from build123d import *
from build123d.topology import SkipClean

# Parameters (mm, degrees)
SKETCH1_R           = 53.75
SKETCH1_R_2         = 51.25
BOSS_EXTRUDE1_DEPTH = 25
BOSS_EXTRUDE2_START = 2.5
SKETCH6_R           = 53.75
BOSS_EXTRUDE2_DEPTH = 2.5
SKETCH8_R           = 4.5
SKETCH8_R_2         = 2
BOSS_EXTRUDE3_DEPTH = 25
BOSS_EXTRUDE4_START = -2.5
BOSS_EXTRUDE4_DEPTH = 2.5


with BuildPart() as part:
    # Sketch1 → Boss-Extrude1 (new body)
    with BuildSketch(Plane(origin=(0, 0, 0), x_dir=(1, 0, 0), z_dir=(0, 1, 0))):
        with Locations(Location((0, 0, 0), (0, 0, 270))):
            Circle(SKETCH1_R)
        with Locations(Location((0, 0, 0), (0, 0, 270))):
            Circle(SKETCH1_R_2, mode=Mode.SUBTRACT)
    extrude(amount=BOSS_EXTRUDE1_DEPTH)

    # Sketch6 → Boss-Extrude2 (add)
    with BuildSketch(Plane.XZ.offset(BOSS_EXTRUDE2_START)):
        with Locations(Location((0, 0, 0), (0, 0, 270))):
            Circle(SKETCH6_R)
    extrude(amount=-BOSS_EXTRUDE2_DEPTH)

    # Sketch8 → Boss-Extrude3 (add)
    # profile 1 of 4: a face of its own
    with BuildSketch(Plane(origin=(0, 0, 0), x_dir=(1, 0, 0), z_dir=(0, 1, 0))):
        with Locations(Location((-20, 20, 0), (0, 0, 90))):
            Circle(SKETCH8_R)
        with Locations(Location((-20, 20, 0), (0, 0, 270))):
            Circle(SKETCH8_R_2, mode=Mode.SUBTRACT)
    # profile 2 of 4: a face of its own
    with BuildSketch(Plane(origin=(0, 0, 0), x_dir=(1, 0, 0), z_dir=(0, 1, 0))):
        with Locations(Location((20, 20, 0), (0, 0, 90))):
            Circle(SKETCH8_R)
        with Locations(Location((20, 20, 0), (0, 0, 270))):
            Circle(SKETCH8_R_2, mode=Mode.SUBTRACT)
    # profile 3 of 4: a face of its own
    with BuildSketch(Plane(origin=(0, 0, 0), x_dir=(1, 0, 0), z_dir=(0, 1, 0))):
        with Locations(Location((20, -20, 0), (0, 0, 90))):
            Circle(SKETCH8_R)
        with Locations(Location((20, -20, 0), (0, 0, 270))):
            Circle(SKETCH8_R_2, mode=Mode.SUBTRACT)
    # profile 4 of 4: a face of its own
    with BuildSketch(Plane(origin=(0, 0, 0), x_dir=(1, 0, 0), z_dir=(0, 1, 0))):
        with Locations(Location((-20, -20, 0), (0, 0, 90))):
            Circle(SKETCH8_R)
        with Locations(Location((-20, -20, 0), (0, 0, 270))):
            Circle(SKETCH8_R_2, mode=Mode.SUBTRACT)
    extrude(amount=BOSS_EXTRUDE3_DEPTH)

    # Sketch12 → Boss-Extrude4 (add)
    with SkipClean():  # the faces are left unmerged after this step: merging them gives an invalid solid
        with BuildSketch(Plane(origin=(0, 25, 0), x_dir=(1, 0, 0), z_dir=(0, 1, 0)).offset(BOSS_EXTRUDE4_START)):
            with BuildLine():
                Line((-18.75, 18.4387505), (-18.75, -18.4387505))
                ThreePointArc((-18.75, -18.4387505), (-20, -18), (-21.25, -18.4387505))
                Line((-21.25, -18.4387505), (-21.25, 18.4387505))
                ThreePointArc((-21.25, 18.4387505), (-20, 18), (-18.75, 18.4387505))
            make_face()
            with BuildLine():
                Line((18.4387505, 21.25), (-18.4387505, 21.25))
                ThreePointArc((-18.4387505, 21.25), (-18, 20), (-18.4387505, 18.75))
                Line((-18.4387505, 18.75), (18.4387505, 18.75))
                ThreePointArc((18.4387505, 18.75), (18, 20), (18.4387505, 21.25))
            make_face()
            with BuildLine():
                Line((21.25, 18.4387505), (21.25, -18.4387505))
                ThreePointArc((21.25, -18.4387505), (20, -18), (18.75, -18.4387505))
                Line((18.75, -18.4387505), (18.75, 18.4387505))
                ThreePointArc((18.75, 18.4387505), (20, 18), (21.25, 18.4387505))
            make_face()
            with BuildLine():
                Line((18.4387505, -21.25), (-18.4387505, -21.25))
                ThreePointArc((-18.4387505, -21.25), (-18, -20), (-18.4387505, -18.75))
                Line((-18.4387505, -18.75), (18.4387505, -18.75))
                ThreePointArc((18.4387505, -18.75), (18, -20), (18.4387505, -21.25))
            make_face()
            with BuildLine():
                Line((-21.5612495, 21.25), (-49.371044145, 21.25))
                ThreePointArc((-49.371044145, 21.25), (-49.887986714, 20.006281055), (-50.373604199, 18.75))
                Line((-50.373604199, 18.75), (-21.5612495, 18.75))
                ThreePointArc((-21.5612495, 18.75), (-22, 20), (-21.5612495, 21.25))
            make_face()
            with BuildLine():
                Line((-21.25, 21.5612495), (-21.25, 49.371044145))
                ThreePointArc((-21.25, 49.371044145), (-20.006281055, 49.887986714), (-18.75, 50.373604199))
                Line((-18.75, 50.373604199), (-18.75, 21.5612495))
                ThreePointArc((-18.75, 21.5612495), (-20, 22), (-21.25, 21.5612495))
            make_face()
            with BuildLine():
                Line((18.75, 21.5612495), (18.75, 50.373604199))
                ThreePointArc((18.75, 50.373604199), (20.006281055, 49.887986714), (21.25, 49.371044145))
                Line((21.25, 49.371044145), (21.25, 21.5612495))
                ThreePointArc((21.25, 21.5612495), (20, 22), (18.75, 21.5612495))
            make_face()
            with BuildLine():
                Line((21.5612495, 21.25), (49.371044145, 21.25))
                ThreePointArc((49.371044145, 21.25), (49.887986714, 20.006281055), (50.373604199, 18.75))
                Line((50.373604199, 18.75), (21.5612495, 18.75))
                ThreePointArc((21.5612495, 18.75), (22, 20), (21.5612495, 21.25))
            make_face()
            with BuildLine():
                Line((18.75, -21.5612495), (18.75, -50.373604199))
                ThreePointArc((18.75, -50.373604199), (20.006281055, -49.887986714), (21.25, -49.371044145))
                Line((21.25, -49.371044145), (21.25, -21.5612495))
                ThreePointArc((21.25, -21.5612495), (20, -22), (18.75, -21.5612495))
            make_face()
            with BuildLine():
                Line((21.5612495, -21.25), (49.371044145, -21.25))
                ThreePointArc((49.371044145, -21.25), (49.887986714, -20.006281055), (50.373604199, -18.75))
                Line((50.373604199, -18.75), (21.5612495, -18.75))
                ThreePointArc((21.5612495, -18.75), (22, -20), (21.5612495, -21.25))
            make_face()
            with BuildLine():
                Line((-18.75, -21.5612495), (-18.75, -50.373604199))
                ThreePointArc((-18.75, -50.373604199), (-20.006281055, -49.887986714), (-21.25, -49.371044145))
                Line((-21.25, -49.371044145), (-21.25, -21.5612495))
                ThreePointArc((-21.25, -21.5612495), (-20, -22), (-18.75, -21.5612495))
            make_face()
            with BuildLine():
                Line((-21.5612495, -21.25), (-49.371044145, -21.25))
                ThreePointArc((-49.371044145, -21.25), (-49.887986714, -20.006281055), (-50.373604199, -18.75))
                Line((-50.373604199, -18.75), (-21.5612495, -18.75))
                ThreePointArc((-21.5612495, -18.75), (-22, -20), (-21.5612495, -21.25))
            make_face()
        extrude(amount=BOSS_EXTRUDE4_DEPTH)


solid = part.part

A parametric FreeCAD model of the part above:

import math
import FreeCAD as App
import Part
import Sketcher

doc = App.newDocument("Part")
body = doc.addObject("PartDesign::Body", "Body")

# Sketch on XZ plane
sketch1 = body.newObject("Sketcher::SketchObject", "Sketch")
sketch1.AttachmentSupport = (doc.getObject("XZ_Plane"), [""])
sketch1.MapMode = "FlatFace"
sketch1.addGeometry([
    Part.Circle(App.Vector(0, 0, 0), App.Vector(0, 0, 1), 54),
    Part.Circle(App.Vector(0, 0, 0), App.Vector(0, 0, 1), 51),
], False)
sketch1.addConstraint([
    Sketcher.Constraint("Coincident", 0, 3, -1, 1),
    Sketcher.Constraint("Coincident", 1, 3, -1, 1),
    Sketcher.Constraint("Diameter", 0, 107.5),
    Sketcher.Constraint("Diameter", 1, 102.5),
])
pad1 = body.newObject("PartDesign::Pad", "Pad")
pad1.Profile = sketch1
pad1.Length = 25
pad1.Reversed = True

# Sketch on XZ plane
sketch2 = body.newObject("Sketcher::SketchObject", "Sketch001")
sketch2.AttachmentSupport = (doc.getObject("XZ_Plane"), [""])
sketch2.MapMode = "FlatFace"
sketch2.AttachmentOffset = App.Placement(App.Vector(0, 0, 2.5), App.Rotation())
sketch2.addGeometry(Part.Circle(App.Vector(0, 0, 0), App.Vector(0, 0, 1), 54), False)
sketch2.addConstraint([
    Sketcher.Constraint("Coincident", 0, 3, -1, 1),
    Sketcher.Constraint("Diameter", 0, 107.5),
])
pad2 = body.newObject("PartDesign::Pad", "Pad001")
pad2.Profile = sketch2
pad2.Length = 2.5
pad2.Reversed = True

# Sketch on XZ plane
sketch3 = body.newObject("Sketcher::SketchObject", "Sketch002")
sketch3.AttachmentSupport = (doc.getObject("XZ_Plane"), [""])
sketch3.MapMode = "FlatFace"
sketch3.addGeometry([
    Part.Circle(App.Vector(-20, -20, 0), App.Vector(0, 0, 1), 4.5),  # 0
    Part.Circle(App.Vector(-20, -20, 0), App.Vector(0, 0, 1), 2),  # 1
    Part.Circle(App.Vector(20, -20, 0), App.Vector(0, 0, 1), 4.5),  # 2
    Part.Circle(App.Vector(20, -20, 0), App.Vector(0, 0, 1), 2),  # 3
    Part.Circle(App.Vector(20, 20, 0), App.Vector(0, 0, 1), 4.5),  # 4
    Part.Circle(App.Vector(20, 20, 0), App.Vector(0, 0, 1), 2),  # 5
    Part.Circle(App.Vector(-20, 20, 0), App.Vector(0, 0, 1), 4.5),  # 6
    Part.Circle(App.Vector(-20, 20, 0), App.Vector(0, 0, 1), 2),  # 7
], False)
sketch3.addConstraint([
    Sketcher.Constraint("Coincident", 1, 3, 0, 3),
    Sketcher.Constraint("Coincident", 3, 3, 2, 3),
    Sketcher.Constraint("Coincident", 5, 3, 4, 3),
    Sketcher.Constraint("Coincident", 7, 3, 6, 3),
    Sketcher.Constraint("Equal", 0, 2),
    Sketcher.Constraint("Equal", 1, 3),
    Sketcher.Constraint("Equal", 2, 4),
    Sketcher.Constraint("Equal", 3, 5),
    Sketcher.Constraint("Equal", 4, 6),
    Sketcher.Constraint("Equal", 5, 7),
    Sketcher.Constraint("Symmetric", 0, 3, 4, 3, -1, 1),
    Sketcher.Constraint("Symmetric", 2, 3, 6, 3, -1, 1),
    Sketcher.Constraint("Symmetric", 0, 3, 2, 3, -2),
    Sketcher.Constraint("Diameter", 0, 9.0),
    Sketcher.Constraint("Diameter", 1, 4.0),
    Sketcher.Constraint("DistanceX", 0, 3, -1, 1, 20.0),
    Sketcher.Constraint("DistanceY", 0, 3, -1, 1, 20.0),
])
pad3 = body.newObject("PartDesign::Pad", "Pad002")
pad3.Profile = sketch3
pad3.Length = 25
pad3.Reversed = True

# Sketch on XZ plane
sketch4 = body.newObject("Sketcher::SketchObject", "Sketch003")
sketch4.AttachmentSupport = (doc.getObject("XZ_Plane"), [""])
sketch4.MapMode = "FlatFace"
sketch4.AttachmentOffset = App.Placement(App.Vector(0, 0, -22.5), App.Rotation())
sketch4.addGeometry([
    Part.LineSegment(App.Vector(-18.8, 18.4, 0), App.Vector(-18.8, -18.4, 0)),  # 0
    Part.ArcOfCircle(Part.Circle(App.Vector(-20, -20, 0), App.Vector(0, 0, 1), 2), math.radians(51), math.radians(129)),  # 1
    Part.LineSegment(App.Vector(-21.2, -18.4, 0), App.Vector(-21.2, 18.4, 0)),  # 2
    Part.ArcOfCircle(Part.Circle(App.Vector(-20, 20, 0), App.Vector(0, 0, 1), 2), math.radians(-129), math.radians(-51)),  # 3
    Part.LineSegment(App.Vector(18.4, -21.2, 0), App.Vector(-18.4, -21.2, 0)),  # 4
    Part.ArcOfCircle(Part.Circle(App.Vector(-20, -20, 0), App.Vector(0, 0, 1), 2), math.radians(-39), math.radians(39)),  # 5
    Part.LineSegment(App.Vector(-18.4, -18.8, 0), App.Vector(18.4, -18.8, 0)),  # 6
    Part.ArcOfCircle(Part.Circle(App.Vector(20, -20, 0), App.Vector(0, 0, 1), 2), math.radians(141), math.radians(219)),  # 7
    Part.LineSegment(App.Vector(21.2, 18.4, 0), App.Vector(21.2, -18.4, 0)),  # 8
    Part.ArcOfCircle(Part.Circle(App.Vector(20, -20, 0), App.Vector(0, 0, 1), 2), math.radians(51), math.radians(129)),  # 9
    Part.LineSegment(App.Vector(18.8, -18.4, 0), App.Vector(18.8, 18.4, 0)),  # 10
    Part.ArcOfCircle(Part.Circle(App.Vector(20, 20, 0), App.Vector(0, 0, 1), 2), math.radians(-129), math.radians(-51)),  # 11
    Part.LineSegment(App.Vector(-18.4, 21.2, 0), App.Vector(18.4, 21.2, 0)),  # 12
    Part.ArcOfCircle(Part.Circle(App.Vector(20, 20, 0), App.Vector(0, 0, 1), 2), math.radians(141), math.radians(219)),  # 13
    Part.LineSegment(App.Vector(18.4, 18.8, 0), App.Vector(-18.4, 18.8, 0)),  # 14
    Part.ArcOfCircle(Part.Circle(App.Vector(-20, 20, 0), App.Vector(0, 0, 1), 2), math.radians(-39), math.radians(39)),  # 15
    Part.LineSegment(App.Vector(-21.6, -21.2, 0), App.Vector(-49.4, -21.2, 0)),  # 16
    Part.ArcOfCircle(Part.Circle(App.Vector(0, 0, 0), App.Vector(0, 0, 1), 53.7), math.radians(-159.58), math.radians(-156.71)),  # 17
    Part.LineSegment(App.Vector(-50.4, -18.8, 0), App.Vector(-21.6, -18.8, 0)),  # 18
    Part.ArcOfCircle(Part.Circle(App.Vector(-20, -20, 0), App.Vector(0, 0, 1), 2), math.radians(141), math.radians(219)),  # 19
    Part.LineSegment(App.Vector(-21.2, -49.4, 0), App.Vector(-21.2, -21.6, 0)),  # 20
    Part.ArcOfCircle(Part.Circle(App.Vector(-20, -20, 0), App.Vector(0, 0, 1), 2), math.radians(-129), math.radians(-51)),  # 21
    Part.LineSegment(App.Vector(-18.8, -21.6, 0), App.Vector(-18.8, -50.4, 0)),  # 22
    Part.ArcOfCircle(Part.Circle(App.Vector(0, 0, 0), App.Vector(0, 0, 1), 53.7), math.radians(-113.29), math.radians(-110.42)),  # 23
    Part.LineSegment(App.Vector(18.8, -50.4, 0), App.Vector(18.8, -21.6, 0)),  # 24
    Part.ArcOfCircle(Part.Circle(App.Vector(20, -20, 0), App.Vector(0, 0, 1), 2), math.radians(-129), math.radians(-51)),  # 25
    Part.LineSegment(App.Vector(21.2, -21.6, 0), App.Vector(21.2, -49.4, 0)),  # 26
    Part.ArcOfCircle(Part.Circle(App.Vector(0, 0, 0), App.Vector(0, 0, 1), 53.7), math.radians(-69.58), math.radians(-66.71)),  # 27
    Part.LineSegment(App.Vector(49.4, -21.2, 0), App.Vector(21.6, -21.2, 0)),  # 28
    Part.ArcOfCircle(Part.Circle(App.Vector(20, -20, 0), App.Vector(0, 0, 1), 2), math.radians(-39), math.radians(39)),  # 29
    Part.LineSegment(App.Vector(21.6, -18.8, 0), App.Vector(50.4, -18.8, 0)),  # 30
    Part.ArcOfCircle(Part.Circle(App.Vector(0, 0, 0), App.Vector(0, 0, 1), 53.7), math.radians(-23.29), math.radians(-20.42)),  # 31
    Part.LineSegment(App.Vector(18.8, 21.6, 0), App.Vector(18.8, 50.4, 0)),  # 32
    Part.ArcOfCircle(Part.Circle(App.Vector(0, 0, 0), App.Vector(0, 0, 1), 53.7), math.radians(66.71), math.radians(69.58)),  # 33
    Part.LineSegment(App.Vector(21.2, 49.4, 0), App.Vector(21.2, 21.6, 0)),  # 34
    Part.ArcOfCircle(Part.Circle(App.Vector(20, 20, 0), App.Vector(0, 0, 1), 2), math.radians(51), math.radians(129)),  # 35
    Part.LineSegment(App.Vector(21.6, 21.2, 0), App.Vector(49.4, 21.2, 0)),  # 36
    Part.ArcOfCircle(Part.Circle(App.Vector(0, 0, 0), App.Vector(0, 0, 1), 53.7), math.radians(20.42), math.radians(23.29)),  # 37
    Part.LineSegment(App.Vector(50.4, 18.8, 0), App.Vector(21.6, 18.8, 0)),  # 38
    Part.ArcOfCircle(Part.Circle(App.Vector(20, 20, 0), App.Vector(0, 0, 1), 2), math.radians(-39), math.radians(39)),  # 39
    Part.LineSegment(App.Vector(-18.8, 50.4, 0), App.Vector(-18.8, 21.6, 0)),  # 40
    Part.ArcOfCircle(Part.Circle(App.Vector(-20, 20, 0), App.Vector(0, 0, 1), 2), math.radians(51), math.radians(129)),  # 41
    Part.LineSegment(App.Vector(-21.2, 21.6, 0), App.Vector(-21.2, 49.4, 0)),  # 42
    Part.ArcOfCircle(Part.Circle(App.Vector(0, 0, 0), App.Vector(0, 0, 1), 53.7), math.radians(110.42), math.radians(113.29)),  # 43
    Part.LineSegment(App.Vector(-49.4, 21.2, 0), App.Vector(-21.6, 21.2, 0)),  # 44
    Part.ArcOfCircle(Part.Circle(App.Vector(-20, 20, 0), App.Vector(0, 0, 1), 2), math.radians(141), math.radians(219)),  # 45
    Part.LineSegment(App.Vector(-21.6, 18.8, 0), App.Vector(-50.4, 18.8, 0)),  # 46
    Part.ArcOfCircle(Part.Circle(App.Vector(0, 0, 0), App.Vector(0, 0, 1), 53.7), math.radians(156.71), math.radians(159.58)),  # 47
], False)
sketch4.addConstraint([
    Sketcher.Constraint("Coincident", 0, 2, 1, 1),
    Sketcher.Constraint("Coincident", 1, 2, 2, 1),
    Sketcher.Constraint("Coincident", 2, 2, 3, 1),
    Sketcher.Constraint("Coincident", 3, 2, 0, 1),
    Sketcher.Constraint("Coincident", 4, 2, 5, 1),
    Sketcher.Constraint("Coincident", 5, 2, 6, 1),
    Sketcher.Constraint("Coincident", 6, 2, 7, 1),
    Sketcher.Constraint("Coincident", 7, 2, 4, 1),
    Sketcher.Constraint("Coincident", 8, 2, 9, 1),
    Sketcher.Constraint("Coincident", 9, 2, 10, 1),
    Sketcher.Constraint("Coincident", 10, 2, 11, 1),
    Sketcher.Constraint("Coincident", 11, 2, 8, 1),
    Sketcher.Constraint("Coincident", 12, 2, 13, 1),
    Sketcher.Constraint("Coincident", 13, 2, 14, 1),
    Sketcher.Constraint("Coincident", 14, 2, 15, 1),
    Sketcher.Constraint("Coincident", 15, 2, 12, 1),
    Sketcher.Constraint("Coincident", 16, 2, 17, 2),
    Sketcher.Constraint("Coincident", 17, 1, 18, 1),
    Sketcher.Constraint("Coincident", 18, 2, 19, 1),
    Sketcher.Constraint("Coincident", 19, 2, 16, 1),
    Sketcher.Constraint("Coincident", 20, 2, 21, 1),
    Sketcher.Constraint("Coincident", 21, 2, 22, 1),
    Sketcher.Constraint("Coincident", 22, 2, 23, 2),
    Sketcher.Constraint("Coincident", 23, 1, 20, 1),
    Sketcher.Constraint("Coincident", 24, 2, 25, 1),
    Sketcher.Constraint("Coincident", 25, 2, 26, 1),
    Sketcher.Constraint("Coincident", 26, 2, 27, 2),
    Sketcher.Constraint("Coincident", 27, 1, 24, 1),
    Sketcher.Constraint("Coincident", 28, 2, 29, 1),
    Sketcher.Constraint("Coincident", 29, 2, 30, 1),
    Sketcher.Constraint("Coincident", 30, 2, 31, 2),
    Sketcher.Constraint("Coincident", 31, 1, 28, 1),
    Sketcher.Constraint("Coincident", 32, 2, 33, 2),
    Sketcher.Constraint("Coincident", 33, 1, 34, 1),
    Sketcher.Constraint("Coincident", 34, 2, 35, 1),
    Sketcher.Constraint("Coincident", 35, 2, 32, 1),
    Sketcher.Constraint("Coincident", 36, 2, 37, 2),
    Sketcher.Constraint("Coincident", 37, 1, 38, 1),
    Sketcher.Constraint("Coincident", 38, 2, 39, 1),
    Sketcher.Constraint("Coincident", 39, 2, 36, 1),
    Sketcher.Constraint("Coincident", 40, 2, 41, 1),
    Sketcher.Constraint("Coincident", 41, 2, 42, 1),
    Sketcher.Constraint("Coincident", 42, 2, 43, 2),
    Sketcher.Constraint("Coincident", 43, 1, 40, 1),
    Sketcher.Constraint("Coincident", 44, 2, 45, 1),
    Sketcher.Constraint("Coincident", 45, 2, 46, 1),
    Sketcher.Constraint("Coincident", 46, 2, 47, 2),
    Sketcher.Constraint("Coincident", 47, 1, 44, 1),
    Sketcher.Constraint("Vertical", 0),
    Sketcher.Constraint("Vertical", 2),
    Sketcher.Constraint("Horizontal", 4),
    Sketcher.Constraint("Horizontal", 6),
    Sketcher.Constraint("Vertical", 8),
    Sketcher.Constraint("Vertical", 10),
    Sketcher.Constraint("Horizontal", 12),
    Sketcher.Constraint("Horizontal", 14),
    Sketcher.Constraint("Horizontal", 16),
    Sketcher.Constraint("Horizontal", 18),
    Sketcher.Constraint("Vertical", 20),
    Sketcher.Constraint("Vertical", 22),
    Sketcher.Constraint("Vertical", 24),
    Sketcher.Constraint("Vertical", 26),
    Sketcher.Constraint("Horizontal", 28),
    Sketcher.Constraint("Horizontal", 30),
    Sketcher.Constraint("Vertical", 32),
    Sketcher.Constraint("Vertical", 34),
    Sketcher.Constraint("Horizontal", 36),
    Sketcher.Constraint("Horizontal", 38),
    Sketcher.Constraint("Vertical", 40),
    Sketcher.Constraint("Vertical", 42),
    Sketcher.Constraint("Horizontal", 44),
    Sketcher.Constraint("Horizontal", 46),
    Sketcher.Constraint("Coincident", 17, 3, -1, 1),
    Sketcher.Constraint("Coincident", 23, 3, -1, 1),
    Sketcher.Constraint("Coincident", 27, 3, -1, 1),
    Sketcher.Constraint("Coincident", 31, 3, -1, 1),
    Sketcher.Constraint("Coincident", 33, 3, -1, 1),
    Sketcher.Constraint("Coincident", 37, 3, -1, 1),
    Sketcher.Constraint("Coincident", 43, 3, -1, 1),
    Sketcher.Constraint("Coincident", 47, 3, -1, 1),
    Sketcher.Constraint("Coincident", 5, 3, 1, 3),
    Sketcher.Constraint("Coincident", 9, 3, 7, 3),
    Sketcher.Constraint("Coincident", 13, 3, 11, 3),
    Sketcher.Constraint("Coincident", 15, 3, 3, 3),
    Sketcher.Constraint("Coincident", 19, 3, 1, 3),
    Sketcher.Constraint("Coincident", 21, 3, 1, 3),
    Sketcher.Constraint("Coincident", 25, 3, 7, 3),
    Sketcher.Constraint("Coincident", 29, 3, 7, 3),
    Sketcher.Constraint("Coincident", 35, 3, 11, 3),
    Sketcher.Constraint("Coincident", 39, 3, 11, 3),
    Sketcher.Constraint("Coincident", 41, 3, 3, 3),
    Sketcher.Constraint("Coincident", 45, 3, 3, 3),
    Sketcher.Constraint("Equal", 1, 3),
    Sketcher.Constraint("Equal", 3, 5),
    Sketcher.Constraint("Equal", 5, 7),
    Sketcher.Constraint("Equal", 7, 9),
    Sketcher.Constraint("Equal", 9, 11),
    Sketcher.Constraint("Equal", 11, 13),
    Sketcher.Constraint("Equal", 13, 15),
    Sketcher.Constraint("Equal", 15, 19),
    Sketcher.Constraint("Equal", 19, 21),
    Sketcher.Constraint("Equal", 17, 23),
    Sketcher.Constraint("Equal", 21, 25),
    Sketcher.Constraint("Equal", 23, 27),
    Sketcher.Constraint("Equal", 25, 29),
    Sketcher.Constraint("Equal", 27, 31),
    Sketcher.Constraint("Equal", 31, 33),
    Sketcher.Constraint("Equal", 29, 35),
    Sketcher.Constraint("Equal", 33, 37),
    Sketcher.Constraint("Equal", 35, 39),
    Sketcher.Constraint("Equal", 39, 41),
    Sketcher.Constraint("Equal", 37, 43),
    Sketcher.Constraint("Equal", 41, 45),
    Sketcher.Constraint("Equal", 43, 47),
    Sketcher.Constraint("Symmetric", 3, 3, 7, 3, -1, 1),
    Sketcher.Constraint("Symmetric", 1, 3, 11, 3, -1, 1),
    Sketcher.Constraint("Symmetric", 1, 3, 7, 3, -2),
    Sketcher.Constraint("Horizontal", 0, 2, 1, 2),
    Sketcher.Constraint("Horizontal", 1, 2, 8, 2),
    Sketcher.Constraint("Horizontal", 8, 2, 9, 2),
    Sketcher.Constraint("Horizontal", 7, 2, 16, 2),
    Sketcher.Constraint("Horizontal", 6, 2, 17, 1),
    Sketcher.Constraint("Horizontal", 20, 2, 21, 2),
    Sketcher.Constraint("Horizontal", 21, 2, 24, 2),
    Sketcher.Constraint("Horizontal", 24, 2, 25, 2),
    Sketcher.Constraint("Horizontal", 19, 2, 28, 2),
    Sketcher.Constraint("Horizontal", 18, 2, 29, 2),
    Sketcher.Constraint("Horizontal", 34, 2, 35, 2),
    Sketcher.Constraint("Horizontal", 15, 2, 36, 2),
    Sketcher.Constraint("Horizontal", 14, 2, 37, 1),
    Sketcher.Constraint("Horizontal", 35, 2, 40, 2),
    Sketcher.Constraint("Horizontal", 40, 2, 41, 2),
    Sketcher.Constraint("Horizontal", 39, 2, 44, 2),
    Sketcher.Constraint("Horizontal", 38, 2, 45, 2),
    Sketcher.Constraint("Vertical", 4, 2, 5, 2),
    Sketcher.Constraint("Vertical", 7, 2, 12, 2),
    Sketcher.Constraint("Vertical", 12, 2, 13, 2),
    Sketcher.Constraint("Vertical", 2, 2, 20, 2),
    Sketcher.Constraint("Vertical", 27, 1, 32, 2),
    Sketcher.Constraint("Equal", 14, 0),
    Sketcher.Constraint("Equal", 44, 20),
    Sketcher.Constraint("Radius", 1, 2.0),
    Sketcher.Constraint("Radius", 17, 53.749999),
    Sketcher.Constraint("DistanceX", 1, 3, -1, 1, 20.0),
    Sketcher.Constraint("DistanceX", 0, 2, -1, 1, 18.75),
])
pad4 = body.newObject("PartDesign::Pad", "Pad003")
pad4.Profile = sketch4
pad4.Length = 2.5
pad4.Reversed = True

doc.recompute()
